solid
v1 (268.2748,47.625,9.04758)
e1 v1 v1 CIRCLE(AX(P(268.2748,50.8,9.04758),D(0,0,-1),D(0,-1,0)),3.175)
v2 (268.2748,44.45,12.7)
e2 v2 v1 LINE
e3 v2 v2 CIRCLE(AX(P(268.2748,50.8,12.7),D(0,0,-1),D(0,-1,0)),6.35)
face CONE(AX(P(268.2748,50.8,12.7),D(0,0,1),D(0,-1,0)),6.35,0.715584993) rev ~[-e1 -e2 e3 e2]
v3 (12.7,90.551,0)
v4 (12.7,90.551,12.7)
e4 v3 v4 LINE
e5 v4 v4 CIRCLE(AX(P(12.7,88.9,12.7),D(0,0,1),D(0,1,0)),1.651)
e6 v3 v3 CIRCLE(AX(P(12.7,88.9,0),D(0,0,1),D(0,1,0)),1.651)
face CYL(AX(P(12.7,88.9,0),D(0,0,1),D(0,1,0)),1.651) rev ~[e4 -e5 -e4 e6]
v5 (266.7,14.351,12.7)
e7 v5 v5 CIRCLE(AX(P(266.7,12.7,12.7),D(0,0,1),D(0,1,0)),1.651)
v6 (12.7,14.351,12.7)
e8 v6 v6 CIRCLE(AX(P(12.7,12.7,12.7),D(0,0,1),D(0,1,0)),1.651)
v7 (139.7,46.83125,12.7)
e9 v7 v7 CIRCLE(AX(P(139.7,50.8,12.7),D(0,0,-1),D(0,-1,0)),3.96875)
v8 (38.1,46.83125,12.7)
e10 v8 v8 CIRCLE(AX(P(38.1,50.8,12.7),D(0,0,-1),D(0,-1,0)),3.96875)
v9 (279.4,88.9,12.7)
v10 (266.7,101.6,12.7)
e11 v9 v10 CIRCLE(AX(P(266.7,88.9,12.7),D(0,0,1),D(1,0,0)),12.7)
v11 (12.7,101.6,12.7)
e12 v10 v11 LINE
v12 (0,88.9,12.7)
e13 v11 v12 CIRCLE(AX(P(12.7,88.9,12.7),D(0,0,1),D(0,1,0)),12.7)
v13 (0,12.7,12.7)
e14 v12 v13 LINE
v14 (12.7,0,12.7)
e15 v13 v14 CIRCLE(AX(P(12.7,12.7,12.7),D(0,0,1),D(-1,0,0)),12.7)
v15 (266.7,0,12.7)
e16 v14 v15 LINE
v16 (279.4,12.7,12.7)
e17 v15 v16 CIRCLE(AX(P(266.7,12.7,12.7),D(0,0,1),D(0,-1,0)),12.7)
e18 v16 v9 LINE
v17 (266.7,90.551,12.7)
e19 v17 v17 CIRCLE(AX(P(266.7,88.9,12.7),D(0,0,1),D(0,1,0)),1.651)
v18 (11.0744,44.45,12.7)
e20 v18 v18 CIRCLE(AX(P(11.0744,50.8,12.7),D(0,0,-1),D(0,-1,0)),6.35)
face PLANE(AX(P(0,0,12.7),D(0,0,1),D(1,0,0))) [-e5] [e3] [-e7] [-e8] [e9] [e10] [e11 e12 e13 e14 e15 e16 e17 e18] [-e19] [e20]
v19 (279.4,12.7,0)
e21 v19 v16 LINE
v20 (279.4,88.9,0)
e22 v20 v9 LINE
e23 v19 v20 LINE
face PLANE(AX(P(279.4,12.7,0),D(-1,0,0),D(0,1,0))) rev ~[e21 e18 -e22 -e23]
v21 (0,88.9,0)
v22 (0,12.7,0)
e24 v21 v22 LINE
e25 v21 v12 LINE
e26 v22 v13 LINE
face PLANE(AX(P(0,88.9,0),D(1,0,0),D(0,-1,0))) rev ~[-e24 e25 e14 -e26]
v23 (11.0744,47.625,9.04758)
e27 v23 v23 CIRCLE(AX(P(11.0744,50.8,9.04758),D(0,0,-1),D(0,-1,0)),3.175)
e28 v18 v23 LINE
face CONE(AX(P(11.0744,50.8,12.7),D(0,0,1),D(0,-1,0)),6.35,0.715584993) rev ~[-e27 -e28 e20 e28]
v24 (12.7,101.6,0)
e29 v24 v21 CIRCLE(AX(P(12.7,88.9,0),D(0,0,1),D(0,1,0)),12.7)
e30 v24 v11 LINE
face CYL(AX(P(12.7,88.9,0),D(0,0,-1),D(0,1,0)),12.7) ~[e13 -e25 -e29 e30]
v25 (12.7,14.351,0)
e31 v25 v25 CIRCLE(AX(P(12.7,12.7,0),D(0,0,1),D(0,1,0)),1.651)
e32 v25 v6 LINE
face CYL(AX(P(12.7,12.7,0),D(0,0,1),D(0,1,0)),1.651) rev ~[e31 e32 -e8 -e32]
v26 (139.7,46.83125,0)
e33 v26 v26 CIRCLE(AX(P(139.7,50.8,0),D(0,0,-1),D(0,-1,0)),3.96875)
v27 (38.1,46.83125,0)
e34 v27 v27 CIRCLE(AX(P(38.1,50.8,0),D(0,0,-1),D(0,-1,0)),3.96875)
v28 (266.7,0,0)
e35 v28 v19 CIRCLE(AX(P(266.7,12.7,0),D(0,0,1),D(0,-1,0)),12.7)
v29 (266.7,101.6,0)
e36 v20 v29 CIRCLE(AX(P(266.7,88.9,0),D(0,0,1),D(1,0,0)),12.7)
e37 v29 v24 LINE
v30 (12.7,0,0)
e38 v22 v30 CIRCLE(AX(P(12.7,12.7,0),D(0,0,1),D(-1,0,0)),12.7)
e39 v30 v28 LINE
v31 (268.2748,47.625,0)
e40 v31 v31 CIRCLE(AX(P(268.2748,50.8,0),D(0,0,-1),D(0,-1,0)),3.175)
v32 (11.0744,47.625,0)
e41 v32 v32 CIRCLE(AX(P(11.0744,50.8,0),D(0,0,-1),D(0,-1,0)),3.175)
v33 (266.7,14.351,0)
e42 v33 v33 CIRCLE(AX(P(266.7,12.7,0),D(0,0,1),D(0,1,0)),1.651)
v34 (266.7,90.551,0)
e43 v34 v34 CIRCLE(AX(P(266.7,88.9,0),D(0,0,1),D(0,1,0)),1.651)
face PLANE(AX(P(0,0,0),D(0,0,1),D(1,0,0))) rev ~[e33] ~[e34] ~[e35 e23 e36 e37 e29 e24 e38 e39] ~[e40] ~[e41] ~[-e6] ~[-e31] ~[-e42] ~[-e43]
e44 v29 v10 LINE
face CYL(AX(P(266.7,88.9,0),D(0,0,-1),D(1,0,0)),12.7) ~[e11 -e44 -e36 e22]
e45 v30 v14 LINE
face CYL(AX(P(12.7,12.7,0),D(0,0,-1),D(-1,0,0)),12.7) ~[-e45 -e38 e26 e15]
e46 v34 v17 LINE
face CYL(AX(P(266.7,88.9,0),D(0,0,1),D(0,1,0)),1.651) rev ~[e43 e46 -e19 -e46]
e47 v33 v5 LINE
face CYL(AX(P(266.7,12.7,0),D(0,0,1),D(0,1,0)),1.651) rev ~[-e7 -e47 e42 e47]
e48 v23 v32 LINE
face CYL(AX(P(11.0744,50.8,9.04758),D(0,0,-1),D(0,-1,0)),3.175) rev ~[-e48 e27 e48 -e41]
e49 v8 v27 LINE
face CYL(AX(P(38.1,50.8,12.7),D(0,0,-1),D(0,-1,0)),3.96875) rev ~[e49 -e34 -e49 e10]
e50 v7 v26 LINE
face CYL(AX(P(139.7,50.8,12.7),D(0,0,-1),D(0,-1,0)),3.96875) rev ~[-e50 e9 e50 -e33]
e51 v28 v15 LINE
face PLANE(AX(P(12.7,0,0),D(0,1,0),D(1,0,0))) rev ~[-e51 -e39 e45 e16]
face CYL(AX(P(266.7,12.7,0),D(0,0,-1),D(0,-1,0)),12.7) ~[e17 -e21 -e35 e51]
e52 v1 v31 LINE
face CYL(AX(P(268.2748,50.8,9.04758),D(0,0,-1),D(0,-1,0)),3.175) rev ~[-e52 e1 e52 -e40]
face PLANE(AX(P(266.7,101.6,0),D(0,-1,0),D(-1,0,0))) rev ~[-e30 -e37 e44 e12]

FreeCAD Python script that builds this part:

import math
import FreeCAD as App
import Part
import Sketcher
from FreeCAD import Vector
Q = App.Units.Quantity

doc = App.newDocument("Part")
body = doc.addObject("PartDesign::Body", "Body")

# Sketch on XY plane
sketch1 = doc.addObject("Sketcher::SketchObject", "Sketch")
body.addObject(sketch1)
sketch1.AttachmentSupport = (doc.XY_Plane, [""])
sketch1.MapMode = "FlatFace"
sketch1.addGeometry([
    Part.ArcOfCircle(Part.Circle(Vector(13, 13, 0), Vector(0, 0, 1), 13), math.radians(180), math.radians(270)),  # 0
    Part.LineSegment(Vector(13, 0, 0), Vector(267, 0, 0)),  # 1
    Part.ArcOfCircle(Part.Circle(Vector(267, 13, 0), Vector(0, 0, 1), 13), math.radians(-90), math.radians(0)),  # 2
    Part.LineSegment(Vector(279, 13, 0), Vector(279, 89, 0)),  # 3
    Part.ArcOfCircle(Part.Circle(Vector(267, 89, 0), Vector(0, 0, 1), 13), math.radians(0), math.radians(90)),  # 4
    Part.LineSegment(Vector(267, 102, 0), Vector(13, 102, 0)),  # 5
    Part.ArcOfCircle(Part.Circle(Vector(13, 89, 0), Vector(0, 0, 1), 13), math.radians(90), math.radians(180)),  # 6
    Part.LineSegment(Vector(0, 89, 0), Vector(0, 13, 0)),  # 7
], False)
sketch1.addConstraint([
    Sketcher.Constraint("Tangent", 0, 2, 1, 1),
    Sketcher.Constraint("Tangent", 1, 2, 2, 1),
    Sketcher.Constraint("Tangent", 2, 2, 3, 1),
    Sketcher.Constraint("Tangent", 3, 2, 4, 1),
    Sketcher.Constraint("Tangent", 4, 2, 5, 1),
    Sketcher.Constraint("Tangent", 5, 2, 6, 1),
    Sketcher.Constraint("Tangent", 6, 2, 7, 1),
    Sketcher.Constraint("Tangent", 7, 2, 0, 1),
    Sketcher.Constraint("Horizontal", 1),
    Sketcher.Constraint("Vertical", 3),
    Sketcher.Constraint("Horizontal", 5),
    Sketcher.Constraint("Vertical", 7),
    Sketcher.Constraint("Equal", 0, 2),
    Sketcher.Constraint("Equal", 2, 4),
    Sketcher.Constraint("Equal", 4, 6),
    Sketcher.Constraint("PointOnObject", 0, 2, -1),
    Sketcher.Constraint("PointOnObject", 6, 2, -2),
    Sketcher.Constraint("Radius", 0, Q("0.5 in")),
    Sketcher.Constraint("DistanceX", -1, 1, 2, 2, Q("11 in")),
    Sketcher.Constraint("DistanceY", -1, 1, 4, 2, Q("4 in")),
])
pad1 = doc.addObject("PartDesign::Pad", "Pad")
body.addObject(pad1)
pad1.Profile = sketch1
pad1.Length = Q("0.5 in")

# Sketch on XY plane
sketch2 = doc.addObject("Sketcher::SketchObject", "Sketch001")
body.addObject(sketch2)
sketch2.AttachmentSupport = (doc.XY_Plane, [""])
sketch2.MapMode = "FlatFace"
sketch2.AttachmentOffset = App.Placement(Vector(0, 0, 0.5 * 25.4), App.Rotation())
sketch2.addGeometry([
    Part.Circle(Vector(11.1, 50.8, 0), Vector(0, 0, 1), 3.2),
    Part.Circle(Vector(268.3, 50.8, 0), Vector(0, 0, 1), 3.2),
], False)
sketch2.addConstraint([
    Sketcher.Constraint("Equal", 0, 1),
    Sketcher.Constraint("Horizontal", 0, 3, 1, 3),
    Sketcher.Constraint("Diameter", 0, Q("0.25 in")),
    Sketcher.Constraint("DistanceY", -1, 1, 0, 3, Q("2 in")),
    Sketcher.Constraint("DistanceX", -1, 1, 0, 3, Q("0.436 in")),
    Sketcher.Constraint("DistanceX", -1, 1, 1, 3, Q("10.562 in")),
])
doc.recompute()
hole = doc.addObject("PartDesign::Hole", "Hole")
body.addObject(hole)
hole.Profile = sketch2
hole.ThreadType = "None"
hole.Diameter = Q("0.25 in")
hole.DepthType = "ThroughAll"
hole.HoleCutType = "Countersink"
hole.HoleCutDiameter = Q("0.5 in")
hole.HoleCutCountersinkAngle = 82

# Sketch on XY plane
sketch3 = doc.addObject("Sketcher::SketchObject", "Sketch002")
body.addObject(sketch3)
sketch3.AttachmentSupport = (doc.XY_Plane, [""])
sketch3.MapMode = "FlatFace"
sketch3.AttachmentOffset = App.Placement(Vector(0, 0, 0.5 * 25.4), App.Rotation())
sketch3.addGeometry([
    Part.Circle(Vector(38.1, 50.8, 0), Vector(0, 0, 1), 4),
    Part.Circle(Vector(139.7, 50.8, 0), Vector(0, 0, 1), 4),
], False)
sketch3.addConstraint([
    Sketcher.Constraint("Equal", 0, 1),
    Sketcher.Constraint("Horizontal", 0, 3, 1, 3),
    Sketcher.Constraint("Diameter", 0, Q("0.3125 in")),
    Sketcher.Constraint("DistanceY", -1, 1, 0, 3, Q("2 in")),
    Sketcher.Constraint("DistanceX", 0, 3, 1, 3, Q("4 in")),
    Sketcher.Constraint("DistanceX", -1, 1, 0, 3, Q("1.5 in")),
])
doc.recompute()
hole2 = doc.addObject("PartDesign::Hole", "Hole001")
body.addObject(hole2)
hole2.Profile = sketch3
hole2.ThreadType = "None"
hole2.Diameter = Q("0.3125 in")
hole2.DepthType = "ThroughAll"

# Sketch on XY plane
sketch4 = doc.addObject("Sketcher::SketchObject", "Sketch003")
body.addObject(sketch4)
sketch4.AttachmentSupport = (doc.XY_Plane, [""])
sketch4.MapMode = "FlatFace"
sketch4.addGeometry([
    Part.Circle(Vector(266.7, 88.9, 0), Vector(0, 0, 1), 1.7),
    Part.Circle(Vector(266.7, 12.7, 0), Vector(0, 0, 1), 1.7),
    Part.Circle(Vector(12.7, 12.7, 0), Vector(0, 0, 1), 1.7),
    Part.Circle(Vector(12.7, 88.9, 0), Vector(0, 0, 1), 1.7),
], False)
sketch4.addConstraint([
    Sketcher.Constraint("Equal", 0, 1),
    Sketcher.Constraint("Equal", 1, 2),
    Sketcher.Constraint("Equal", 2, 3),
    Sketcher.Constraint("Horizontal", 1, 3, 2, 3),
    Sketcher.Constraint("Horizontal", 0, 3, 3, 3),
    Sketcher.Constraint("Vertical", 0, 3, 1, 3),
    Sketcher.Constraint("Vertical", 2, 3, 3, 3),
    Sketcher.Constraint("Diameter", 0, Q("0.13 in")),
    Sketcher.Constraint("DistanceY", 1, 3, 0, 3, Q("3 in")),
    Sketcher.Constraint("DistanceX", 2, 3, 1, 3, Q("10 in")),
    Sketcher.Constraint("DistanceX", -1, 1, 0, 3, Q("10.5 in")),
    Sketcher.Constraint("DistanceY", -1, 1, 0, 3, Q("3.5 in")),
])
doc.recompute()
hole3 = doc.addObject("PartDesign::Hole", "Hole002")
body.addObject(hole3)
hole3.Profile = sketch4
hole3.ThreadType = "None"
hole3.Diameter = Q("0.13 in")
hole3.DepthType = "ThroughAll"
hole3.Reversed = True

doc.recompute()
